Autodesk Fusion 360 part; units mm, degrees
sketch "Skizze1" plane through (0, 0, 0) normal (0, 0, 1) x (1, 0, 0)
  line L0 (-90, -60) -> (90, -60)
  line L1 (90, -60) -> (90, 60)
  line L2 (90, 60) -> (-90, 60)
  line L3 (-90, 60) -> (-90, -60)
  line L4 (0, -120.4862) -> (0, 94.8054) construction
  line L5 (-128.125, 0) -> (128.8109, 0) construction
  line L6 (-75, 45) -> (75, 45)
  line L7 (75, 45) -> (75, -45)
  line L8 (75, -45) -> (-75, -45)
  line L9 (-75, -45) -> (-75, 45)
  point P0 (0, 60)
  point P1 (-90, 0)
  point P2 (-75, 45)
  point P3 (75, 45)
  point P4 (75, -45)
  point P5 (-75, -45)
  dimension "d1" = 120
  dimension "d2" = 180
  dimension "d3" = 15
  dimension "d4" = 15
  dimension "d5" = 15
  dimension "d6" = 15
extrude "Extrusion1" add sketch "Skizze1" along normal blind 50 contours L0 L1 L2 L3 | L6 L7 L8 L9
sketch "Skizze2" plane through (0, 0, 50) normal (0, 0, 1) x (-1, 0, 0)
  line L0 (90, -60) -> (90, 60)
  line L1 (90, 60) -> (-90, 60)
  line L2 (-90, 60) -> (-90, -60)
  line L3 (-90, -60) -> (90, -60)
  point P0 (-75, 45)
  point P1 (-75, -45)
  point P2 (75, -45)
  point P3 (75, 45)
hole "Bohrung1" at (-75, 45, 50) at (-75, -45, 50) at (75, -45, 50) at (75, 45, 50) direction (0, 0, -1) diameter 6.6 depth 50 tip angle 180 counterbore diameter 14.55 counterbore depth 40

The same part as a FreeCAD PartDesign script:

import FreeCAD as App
import Part
import Sketcher
from FreeCAD import Vector
Q = App.Units.Quantity


def add_polygon(sketch, points):
    """Adds a closed chain of lines whose ends are joined by coincident constraints."""
    first, n = sketch.GeometryCount, len(points)
    for a, b in zip(points, points[1:] + points[:1]):
        sketch.addGeometry(Part.LineSegment(App.Vector(*a, 0), App.Vector(*b, 0)), False)
    for i in range(n):
        sketch.addConstraint(Sketcher.Constraint("Coincident", first + i, 2, first + (i + 1) % n, 1))

doc = App.newDocument("Part")
params = doc.addObject("Spreadsheet::Sheet", "Params")
for row, (alias, value) in enumerate([
    ("sketch1_width", "180 mm"),
    ("sketch1_height", "120 mm"),
    ("pad1_length", "50 mm"),
    ("sketch2_diameter", "6.6 mm"),
    ("hole_diameter", "6.6 mm"),
    ("hole_depth", "50 mm"),
    ("hole_cbore_diameter", "14.55 mm"),
    ("hole_cbore_depth", "40 mm"),
], start=1):
    params.set(f"A{row}", alias)
    params.set(f"B{row}", "=" + value)
    params.setAlias(f"B{row}", alias)

body = doc.addObject("PartDesign::Body", "Body")

sketch1 = body.newObject("Sketcher::SketchObject", "Sketch")
sketch1.AttachmentSupport = (doc.getObject("XY_Plane"), [""])
sketch1.MapMode = "FlatFace"
add_polygon(sketch1, [(-90, 60), (-90, -60), (90, -60), (90, 60)])
sketch1.addConstraint([
    Sketcher.Constraint("Vertical", 0),
    Sketcher.Constraint("Horizontal", 1),
    Sketcher.Constraint("Vertical", 2),
    Sketcher.Constraint("Horizontal", 3),
    Sketcher.Constraint("Symmetric", 0, 2, 2, 2, -1, 1),
    Sketcher.Constraint("DistanceX", 1, 1, 1, 2, Q("180 mm")),
    Sketcher.Constraint("DistanceY", 0, 2, 0, 1, Q("120 mm")),
])
sketch1.setExpression("Constraints[9]", "Params.sketch1_width")
sketch1.setExpression("Constraints[10]", "Params.sketch1_height")
pad1 = body.newObject("PartDesign::Pad", "Pad")
pad1.Profile = sketch1
pad1.setExpression("Length", "Params.pad1_length")

sketch2 = body.newObject("Sketcher::SketchObject", "Sketch001")
sketch2.AttachmentSupport = (doc.getObject("XY_Plane"), [""])
sketch2.MapMode = "FlatFace"
sketch2.AttachmentOffset = App.Placement(Vector(0, 0, 50), App.Rotation())
sketch2.addGeometry([
    Part.Circle(Vector(-75, 45, 0), Vector(0, 0, 1), 3.3),
    Part.Circle(Vector(-75, -45, 0), Vector(0, 0, 1), 3.3),
    Part.Circle(Vector(75, -45, 0), Vector(0, 0, 1), 3.3),
    Part.Circle(Vector(75, 45, 0), Vector(0, 0, 1), 3.3),
], False)
sketch2.addConstraint([
    Sketcher.Constraint("Equal", 0, 1),
    Sketcher.Constraint("Equal", 1, 2),
    Sketcher.Constraint("Equal", 2, 3),
    Sketcher.Constraint("Symmetric", 0, 3, 2, 3, -1, 1),
    Sketcher.Constraint("Symmetric", 1, 3, 3, 3, -1, 1),
    Sketcher.Constraint("Symmetric", 1, 3, 2, 3, -2),
    Sketcher.Constraint("Diameter", 0, Q("6.6 mm")),
    Sketcher.Constraint("DistanceX", 0, 3, -1, 1, Q("75 mm")),
    Sketcher.Constraint("DistanceY", -1, 1, 0, 3, Q("45 mm")),
])
sketch2.setExpression("Constraints[6]", "Params.sketch2_diameter")
doc.recompute()
hole = body.newObject("PartDesign::Hole", "Hole")
hole.Profile = sketch2
hole.ThreadType = "None"
hole.setExpression("Diameter", "Params.hole_diameter")
hole.DepthType = "Dimension"
hole.setExpression("Depth", "Params.hole_depth")
hole.DrillPoint = "Flat"
hole.HoleCutType = "Counterbore"
hole.setExpression("HoleCutDiameter", "Params.hole_cbore_diameter")
hole.setExpression("HoleCutDepth", "Params.hole_cbore_depth")

doc.recompute()
